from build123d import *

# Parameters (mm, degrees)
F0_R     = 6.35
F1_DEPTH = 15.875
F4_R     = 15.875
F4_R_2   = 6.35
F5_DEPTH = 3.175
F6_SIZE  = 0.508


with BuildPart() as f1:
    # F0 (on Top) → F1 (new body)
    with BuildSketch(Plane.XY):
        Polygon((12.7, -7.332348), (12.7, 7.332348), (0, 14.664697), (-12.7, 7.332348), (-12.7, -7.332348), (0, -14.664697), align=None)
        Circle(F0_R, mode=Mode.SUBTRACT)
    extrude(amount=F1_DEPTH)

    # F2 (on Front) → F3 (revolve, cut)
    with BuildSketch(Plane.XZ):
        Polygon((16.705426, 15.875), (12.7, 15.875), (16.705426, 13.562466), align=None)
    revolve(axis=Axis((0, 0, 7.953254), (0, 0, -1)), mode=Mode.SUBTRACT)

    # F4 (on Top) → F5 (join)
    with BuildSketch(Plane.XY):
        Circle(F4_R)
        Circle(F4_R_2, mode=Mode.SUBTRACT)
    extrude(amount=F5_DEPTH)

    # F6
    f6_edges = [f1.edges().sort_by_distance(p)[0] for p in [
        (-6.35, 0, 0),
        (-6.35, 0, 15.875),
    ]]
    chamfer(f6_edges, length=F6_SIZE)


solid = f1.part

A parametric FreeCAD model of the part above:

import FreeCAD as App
import Part
import Sketcher
Q = App.Units.Quantity


def edges_at(feature, points):
    """Names of the edges that pass closest to the given points."""
    edges = feature.Shape.Edges
    near = lambda p: min(range(len(edges)), key=lambda i: edges[i].distToShape(Part.Vertex(*p))[0])
    return sorted({f"Edge{near(p) + 1}" for p in points})


def add_polygon(sketch, points):
    """Adds a closed chain of lines whose ends are joined by coincident constraints."""
    first, n = sketch.GeometryCount, len(points)
    for a, b in zip(points, points[1:] + points[:1]):
        sketch.addGeometry(Part.LineSegment(App.Vector(*a, 0), App.Vector(*b, 0)), False)
    for i in range(n):
        sketch.addConstraint(Sketcher.Constraint("Coincident", first + i, 2, first + (i + 1) % n, 1))

doc = App.newDocument("Part")
body = doc.addObject("PartDesign::Body", "Body")

# Sketch on XY plane
sketch1 = body.newObject("Sketcher::SketchObject", "Sketch")
sketch1.AttachmentSupport = (doc.getObject("XY_Plane"), [""])
sketch1.MapMode = "FlatFace"
add_polygon(sketch1, [(13, -7), (13, 7), (0, 15), (-13, 7), (-13, -7), (0, -15)])  # lines 0-5
sketch1.addGeometry(Part.Circle(App.Vector(0, 0, 0), App.Vector(0, 0, 1), 6), False)  # 6
sketch1.addConstraint([
    Sketcher.Constraint("Vertical", 0),
    Sketcher.Constraint("Vertical", 3),
    Sketcher.Constraint("Coincident", 6, 3, -1, 1),
    Sketcher.Constraint("Symmetric", 0, 2, 3, 2, -1, 1),
    Sketcher.Constraint("Symmetric", 1, 2, 4, 2, -1, 1),
    Sketcher.Constraint("PointOnObject", 1, 2, -2),
    Sketcher.Constraint("Parallel", 2, 5),
    Sketcher.Constraint("Horizontal", 0, 2, 2, 2),
    Sketcher.Constraint("Diameter", 6, Q("0.5 in")),
    Sketcher.Constraint("Angle", 1, Q("149.999998 deg")),
    Sketcher.Constraint("DistanceX", 2, 2, 0, 2, Q("1 in")),
    Sketcher.Constraint("DistanceY", 0, 1, 0, 2, 14.664696),
])
pad1 = body.newObject("PartDesign::Pad", "Pad")
pad1.Profile = sketch1
pad1.Length = Q("0.625 in")

# Sketch on XZ plane
sketch2 = body.newObject("Sketcher::SketchObject", "Sketch001")
sketch2.AttachmentSupport = (doc.getObject("XZ_Plane"), [""])
sketch2.MapMode = "FlatFace"
add_polygon(sketch2, [(16.7, 15.9), (12.7, 15.9), (16.7, 13.6)])  # lines 0-2
sketch2.addConstraint([
    Sketcher.Constraint("Horizontal", 0),
    Sketcher.Constraint("Vertical", 2),
    Sketcher.Constraint("Angle", 1, Q("-30.000002 deg")),
    Sketcher.Constraint("DistanceX", -1, 1, 0, 2, Q("0.5 in")),
    Sketcher.Constraint("DistanceY", -1, 1, 0, 2, Q("0.625 in")),
    Sketcher.Constraint("DistanceX", 0, 2, 0, 1, 4.005426),
])
groove = body.newObject("PartDesign::Groove", "Groove")
groove.Profile = sketch2
groove.ReferenceAxis = (sketch2, ["V_Axis"])
groove.Angle = 360

# Sketch on XY plane
sketch3 = body.newObject("Sketcher::SketchObject", "Sketch002")
sketch3.AttachmentSupport = (doc.getObject("XY_Plane"), [""])
sketch3.MapMode = "FlatFace"
sketch3.addGeometry([
    Part.Circle(App.Vector(0, 0, 0), App.Vector(0, 0, 1), 16),
    Part.Circle(App.Vector(0, 0, 0), App.Vector(0, 0, 1), 6),
], False)
sketch3.addConstraint([
    Sketcher.Constraint("Coincident", 0, 3, -1, 1),
    Sketcher.Constraint("Coincident", 1, 3, -1, 1),
    Sketcher.Constraint("Diameter", 1, Q("0.5 in")),
    Sketcher.Constraint("Diameter", 0, Q("1.25 in")),
])
pad2 = body.newObject("PartDesign::Pad", "Pad001")
pad2.Profile = sketch3
pad2.Length = Q("0.125 in")
doc.recompute()

chamfer = body.newObject("PartDesign::Chamfer", "Chamfer")
chamfer.Base = (pad2, edges_at(pad2, [(-6.35, 0, 0), (-6.35, 0, 15.875)]))
chamfer.Size = Q("0.02 in")

doc.recompute()
